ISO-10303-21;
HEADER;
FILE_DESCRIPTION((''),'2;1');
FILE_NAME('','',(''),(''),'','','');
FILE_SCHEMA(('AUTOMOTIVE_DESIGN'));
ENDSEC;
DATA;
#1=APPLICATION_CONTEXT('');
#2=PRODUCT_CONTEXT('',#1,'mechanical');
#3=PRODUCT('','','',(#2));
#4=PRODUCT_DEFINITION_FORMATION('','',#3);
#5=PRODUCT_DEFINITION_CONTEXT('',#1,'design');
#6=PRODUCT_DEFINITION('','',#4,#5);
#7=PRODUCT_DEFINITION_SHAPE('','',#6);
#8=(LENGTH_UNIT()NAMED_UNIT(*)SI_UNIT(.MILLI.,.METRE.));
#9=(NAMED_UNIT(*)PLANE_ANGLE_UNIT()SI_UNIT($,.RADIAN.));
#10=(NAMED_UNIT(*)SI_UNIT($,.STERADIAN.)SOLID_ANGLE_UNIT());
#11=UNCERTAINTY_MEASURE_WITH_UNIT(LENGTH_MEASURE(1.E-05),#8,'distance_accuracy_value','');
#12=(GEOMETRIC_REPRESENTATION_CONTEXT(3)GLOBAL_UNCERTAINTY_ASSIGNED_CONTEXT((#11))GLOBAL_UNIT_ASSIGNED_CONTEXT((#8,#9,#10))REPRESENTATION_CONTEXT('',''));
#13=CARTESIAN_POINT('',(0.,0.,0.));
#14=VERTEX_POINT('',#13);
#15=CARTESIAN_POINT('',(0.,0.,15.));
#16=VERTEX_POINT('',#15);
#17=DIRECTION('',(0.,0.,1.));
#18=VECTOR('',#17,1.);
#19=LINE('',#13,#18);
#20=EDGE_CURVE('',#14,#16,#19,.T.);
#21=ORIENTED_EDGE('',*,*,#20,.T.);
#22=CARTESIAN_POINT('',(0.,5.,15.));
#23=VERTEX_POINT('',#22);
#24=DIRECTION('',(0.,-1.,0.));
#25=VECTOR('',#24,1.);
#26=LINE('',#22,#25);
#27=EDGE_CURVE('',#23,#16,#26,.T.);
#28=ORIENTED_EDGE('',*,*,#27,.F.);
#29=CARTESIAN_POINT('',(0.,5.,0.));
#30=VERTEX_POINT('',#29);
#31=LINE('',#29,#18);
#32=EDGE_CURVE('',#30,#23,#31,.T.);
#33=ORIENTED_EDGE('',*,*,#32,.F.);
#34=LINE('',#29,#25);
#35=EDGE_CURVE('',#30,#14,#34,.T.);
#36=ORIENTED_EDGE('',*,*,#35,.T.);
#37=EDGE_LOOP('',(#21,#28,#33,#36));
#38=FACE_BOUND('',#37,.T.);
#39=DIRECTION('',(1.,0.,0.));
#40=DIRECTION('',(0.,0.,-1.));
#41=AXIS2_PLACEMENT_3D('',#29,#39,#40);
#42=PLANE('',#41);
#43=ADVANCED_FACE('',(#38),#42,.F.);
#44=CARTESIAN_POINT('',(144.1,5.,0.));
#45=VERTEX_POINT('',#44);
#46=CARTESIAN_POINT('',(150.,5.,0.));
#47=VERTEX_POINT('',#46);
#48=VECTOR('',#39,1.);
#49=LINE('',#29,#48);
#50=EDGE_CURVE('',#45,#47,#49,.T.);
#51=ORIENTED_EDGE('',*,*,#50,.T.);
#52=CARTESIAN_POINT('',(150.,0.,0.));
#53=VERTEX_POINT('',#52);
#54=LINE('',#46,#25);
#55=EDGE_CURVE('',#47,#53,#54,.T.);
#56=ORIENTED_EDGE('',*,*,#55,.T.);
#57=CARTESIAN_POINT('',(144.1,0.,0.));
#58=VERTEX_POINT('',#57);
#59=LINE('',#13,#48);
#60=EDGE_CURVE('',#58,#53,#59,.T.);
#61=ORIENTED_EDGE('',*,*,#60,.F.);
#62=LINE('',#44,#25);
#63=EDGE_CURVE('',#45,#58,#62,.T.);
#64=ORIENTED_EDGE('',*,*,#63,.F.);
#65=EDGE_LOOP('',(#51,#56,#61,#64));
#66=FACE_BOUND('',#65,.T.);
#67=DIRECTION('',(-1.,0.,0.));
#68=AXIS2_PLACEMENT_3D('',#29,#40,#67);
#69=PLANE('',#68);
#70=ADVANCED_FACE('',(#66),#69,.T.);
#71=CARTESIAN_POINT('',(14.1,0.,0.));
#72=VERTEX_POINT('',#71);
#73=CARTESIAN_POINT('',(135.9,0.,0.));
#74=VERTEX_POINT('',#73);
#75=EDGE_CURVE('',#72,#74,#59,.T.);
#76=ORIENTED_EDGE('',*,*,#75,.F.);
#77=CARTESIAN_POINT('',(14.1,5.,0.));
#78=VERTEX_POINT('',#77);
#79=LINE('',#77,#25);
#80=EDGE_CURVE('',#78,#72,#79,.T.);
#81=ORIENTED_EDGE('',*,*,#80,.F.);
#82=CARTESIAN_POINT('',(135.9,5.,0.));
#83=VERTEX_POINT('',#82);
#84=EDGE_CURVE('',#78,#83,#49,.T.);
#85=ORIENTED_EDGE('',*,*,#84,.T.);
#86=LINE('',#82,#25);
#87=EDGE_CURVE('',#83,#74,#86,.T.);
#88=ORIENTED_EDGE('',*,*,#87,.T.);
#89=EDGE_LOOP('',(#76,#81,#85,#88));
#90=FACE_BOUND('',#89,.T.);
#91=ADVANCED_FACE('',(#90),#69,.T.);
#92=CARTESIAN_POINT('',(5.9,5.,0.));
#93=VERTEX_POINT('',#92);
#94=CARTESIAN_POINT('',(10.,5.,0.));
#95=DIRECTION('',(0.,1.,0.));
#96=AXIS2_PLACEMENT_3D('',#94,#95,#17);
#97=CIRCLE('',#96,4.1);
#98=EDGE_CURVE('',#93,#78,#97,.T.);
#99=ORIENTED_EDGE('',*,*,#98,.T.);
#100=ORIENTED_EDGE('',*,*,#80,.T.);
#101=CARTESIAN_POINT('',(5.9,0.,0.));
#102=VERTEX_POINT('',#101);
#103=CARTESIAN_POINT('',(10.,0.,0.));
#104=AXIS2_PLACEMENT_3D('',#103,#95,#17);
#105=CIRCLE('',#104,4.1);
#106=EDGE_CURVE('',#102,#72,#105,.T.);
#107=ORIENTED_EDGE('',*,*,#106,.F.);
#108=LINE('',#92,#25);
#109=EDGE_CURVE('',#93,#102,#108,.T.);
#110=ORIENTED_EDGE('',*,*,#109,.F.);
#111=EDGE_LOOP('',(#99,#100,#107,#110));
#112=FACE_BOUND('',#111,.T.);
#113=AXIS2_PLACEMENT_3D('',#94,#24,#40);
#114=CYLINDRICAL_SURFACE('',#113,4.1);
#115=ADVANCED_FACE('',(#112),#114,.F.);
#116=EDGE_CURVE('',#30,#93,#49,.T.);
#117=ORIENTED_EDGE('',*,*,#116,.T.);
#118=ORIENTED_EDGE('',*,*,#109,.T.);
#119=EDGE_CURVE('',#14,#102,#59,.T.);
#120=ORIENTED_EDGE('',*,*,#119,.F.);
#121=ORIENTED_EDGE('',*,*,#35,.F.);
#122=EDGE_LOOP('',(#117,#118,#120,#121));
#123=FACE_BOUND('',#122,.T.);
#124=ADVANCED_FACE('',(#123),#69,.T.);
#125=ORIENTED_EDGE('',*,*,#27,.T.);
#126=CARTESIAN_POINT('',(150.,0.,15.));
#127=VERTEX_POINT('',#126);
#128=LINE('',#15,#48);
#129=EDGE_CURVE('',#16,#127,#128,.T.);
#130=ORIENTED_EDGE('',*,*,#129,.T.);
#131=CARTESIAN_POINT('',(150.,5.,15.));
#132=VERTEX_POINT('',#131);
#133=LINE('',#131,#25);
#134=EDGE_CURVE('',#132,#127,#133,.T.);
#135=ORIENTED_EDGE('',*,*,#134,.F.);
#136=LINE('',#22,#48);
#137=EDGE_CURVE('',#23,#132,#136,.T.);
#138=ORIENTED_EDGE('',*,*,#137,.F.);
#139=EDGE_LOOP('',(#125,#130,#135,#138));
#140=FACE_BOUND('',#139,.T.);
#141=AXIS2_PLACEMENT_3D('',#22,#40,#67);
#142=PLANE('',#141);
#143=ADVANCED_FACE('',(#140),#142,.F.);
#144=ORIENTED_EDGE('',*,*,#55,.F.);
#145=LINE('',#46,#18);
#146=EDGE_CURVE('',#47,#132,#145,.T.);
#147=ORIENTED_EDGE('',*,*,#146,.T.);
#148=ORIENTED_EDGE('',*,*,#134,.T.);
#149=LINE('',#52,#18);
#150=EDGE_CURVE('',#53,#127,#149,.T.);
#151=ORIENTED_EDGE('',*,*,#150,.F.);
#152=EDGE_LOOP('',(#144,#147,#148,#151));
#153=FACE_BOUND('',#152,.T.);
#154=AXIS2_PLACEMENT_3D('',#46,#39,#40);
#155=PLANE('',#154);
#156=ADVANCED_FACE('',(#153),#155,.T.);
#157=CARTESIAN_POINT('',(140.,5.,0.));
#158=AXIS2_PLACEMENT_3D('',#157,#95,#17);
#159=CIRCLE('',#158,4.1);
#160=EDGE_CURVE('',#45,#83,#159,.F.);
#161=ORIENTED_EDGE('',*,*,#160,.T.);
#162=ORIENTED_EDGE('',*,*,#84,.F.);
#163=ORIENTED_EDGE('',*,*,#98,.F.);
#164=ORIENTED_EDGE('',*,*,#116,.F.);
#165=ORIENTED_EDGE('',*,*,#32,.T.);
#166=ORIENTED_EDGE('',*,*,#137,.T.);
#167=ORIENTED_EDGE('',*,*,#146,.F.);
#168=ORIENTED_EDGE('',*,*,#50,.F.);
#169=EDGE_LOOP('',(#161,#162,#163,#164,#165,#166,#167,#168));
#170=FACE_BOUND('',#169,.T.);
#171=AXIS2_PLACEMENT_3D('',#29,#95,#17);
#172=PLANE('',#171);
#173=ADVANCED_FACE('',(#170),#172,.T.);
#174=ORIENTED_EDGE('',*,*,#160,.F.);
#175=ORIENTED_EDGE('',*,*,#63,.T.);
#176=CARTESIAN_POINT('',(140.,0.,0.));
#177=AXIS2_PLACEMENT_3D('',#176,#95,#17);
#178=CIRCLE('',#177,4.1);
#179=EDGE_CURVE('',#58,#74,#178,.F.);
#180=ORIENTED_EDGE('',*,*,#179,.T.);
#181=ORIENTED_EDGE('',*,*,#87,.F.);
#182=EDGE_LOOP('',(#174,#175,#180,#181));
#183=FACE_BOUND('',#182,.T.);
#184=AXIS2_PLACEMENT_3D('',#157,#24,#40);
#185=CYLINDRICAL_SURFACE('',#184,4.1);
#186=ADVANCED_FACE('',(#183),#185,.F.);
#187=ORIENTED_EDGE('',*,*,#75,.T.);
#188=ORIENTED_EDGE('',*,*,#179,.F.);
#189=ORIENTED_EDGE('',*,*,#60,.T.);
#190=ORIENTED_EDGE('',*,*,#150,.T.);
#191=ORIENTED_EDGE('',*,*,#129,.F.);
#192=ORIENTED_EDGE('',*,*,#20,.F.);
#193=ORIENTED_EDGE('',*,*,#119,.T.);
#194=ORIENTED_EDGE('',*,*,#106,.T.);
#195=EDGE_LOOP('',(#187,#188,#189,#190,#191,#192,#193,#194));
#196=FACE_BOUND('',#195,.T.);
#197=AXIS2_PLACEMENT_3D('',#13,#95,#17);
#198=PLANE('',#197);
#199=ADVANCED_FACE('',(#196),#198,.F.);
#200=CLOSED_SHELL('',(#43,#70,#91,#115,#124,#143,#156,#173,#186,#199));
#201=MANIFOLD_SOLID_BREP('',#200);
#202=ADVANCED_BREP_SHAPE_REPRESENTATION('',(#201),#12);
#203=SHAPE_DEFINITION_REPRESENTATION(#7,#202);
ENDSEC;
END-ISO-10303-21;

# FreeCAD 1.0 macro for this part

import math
import FreeCAD as App
import Part
import Sketcher
from FreeCAD import Vector
Q = App.Units.Quantity

doc = App.newDocument("Part")
body = doc.addObject("PartDesign::Body", "Body")

sketch1 = doc.addObject("Sketcher::SketchObject", "Sketch")
body.addObject(sketch1)
sketch1.AttachmentSupport = (doc.XZ_Plane, [""])
sketch1.MapMode = "FlatFace"
sketch1.addGeometry(Part.ArcOfCircle(Part.Circle(Vector(10, 0, 0), Vector(0, 0, 1), 4.1), math.radians(0), math.radians(180)), False)
sketch1.addGeometry(Part.LineSegment(Vector(5.9, 0, 0), Vector(0, 0, 0)), False)
sketch1.addGeometry(Part.LineSegment(Vector(0, 0, 0), Vector(0, 15, 0)), False)
sketch1.addGeometry(Part.LineSegment(Vector(0, 15, 0), Vector(150, 15, 0)), False)
sketch1.addGeometry(Part.LineSegment(Vector(150, 15, 0), Vector(150, 0, 0)), False)
sketch1.addGeometry(Part.LineSegment(Vector(150, 0, 0), Vector(144.1, 0, 0)), False)
sketch1.addGeometry(Part.ArcOfCircle(Part.Circle(Vector(140, 0, 0), Vector(0, 0, 1), 4.1), math.radians(0), math.radians(180)), False)
sketch1.addGeometry(Part.LineSegment(Vector(135.9, 0, 0), Vector(14.1, 0, 0)), False)
sketch1.addConstraint(Sketcher.Constraint("Coincident", 0, 2, 1, 1))
sketch1.addConstraint(Sketcher.Constraint("Coincident", 1, 2, 2, 1))
sketch1.addConstraint(Sketcher.Constraint("Coincident", 2, 2, 3, 1))
sketch1.addConstraint(Sketcher.Constraint("Coincident", 3, 2, 4, 1))
sketch1.addConstraint(Sketcher.Constraint("Coincident", 4, 2, 5, 1))
sketch1.addConstraint(Sketcher.Constraint("Coincident", 5, 2, 6, 1))
sketch1.addConstraint(Sketcher.Constraint("Coincident", 6, 2, 7, 1))
sketch1.addConstraint(Sketcher.Constraint("Coincident", 7, 2, 0, 1))
sketch1.addConstraint(Sketcher.Constraint("Horizontal", 1))
sketch1.addConstraint(Sketcher.Constraint("Vertical", 2))
sketch1.addConstraint(Sketcher.Constraint("Horizontal", 3))
sketch1.addConstraint(Sketcher.Constraint("Vertical", 4))
sketch1.addConstraint(Sketcher.Constraint("Horizontal", 5))
sketch1.addConstraint(Sketcher.Constraint("Horizontal", 7))
sketch1.addConstraint(Sketcher.Constraint("Coincident", 1, 2, -1, 1))
sketch1.addConstraint(Sketcher.Constraint("Equal", 0, 6))
sketch1.addConstraint(Sketcher.Constraint("PointOnObject", 0, 3, -1))
sketch1.addConstraint(Sketcher.Constraint("PointOnObject", 6, 3, -1))
sketch1.addConstraint(Sketcher.Constraint("PointOnObject", 4, 2, -1))
sketch1.addConstraint(Sketcher.Constraint("PointOnObject", 6, 2, -1))
sketch1.addConstraint(Sketcher.Constraint("Equal", 1, 5))
sketch1.addConstraint(Sketcher.Constraint("Radius", 0, Q("4.1 mm")))
sketch1.addConstraint(Sketcher.Constraint("DistanceX", 3, 1, 3, 2, Q("150 mm")))
sketch1.addConstraint(Sketcher.Constraint("DistanceY", 2, 1, 2, 2, Q("15 mm")))
sketch1.addConstraint(Sketcher.Constraint("DistanceX", 1, 2, 1, 1, Q("5.9 mm")))
pad1 = doc.addObject("PartDesign::Pad", "Pad")
body.addObject(pad1)
pad1.Profile = sketch1
pad1.Length = 5
pad1.Reversed = True

doc.recompute()
